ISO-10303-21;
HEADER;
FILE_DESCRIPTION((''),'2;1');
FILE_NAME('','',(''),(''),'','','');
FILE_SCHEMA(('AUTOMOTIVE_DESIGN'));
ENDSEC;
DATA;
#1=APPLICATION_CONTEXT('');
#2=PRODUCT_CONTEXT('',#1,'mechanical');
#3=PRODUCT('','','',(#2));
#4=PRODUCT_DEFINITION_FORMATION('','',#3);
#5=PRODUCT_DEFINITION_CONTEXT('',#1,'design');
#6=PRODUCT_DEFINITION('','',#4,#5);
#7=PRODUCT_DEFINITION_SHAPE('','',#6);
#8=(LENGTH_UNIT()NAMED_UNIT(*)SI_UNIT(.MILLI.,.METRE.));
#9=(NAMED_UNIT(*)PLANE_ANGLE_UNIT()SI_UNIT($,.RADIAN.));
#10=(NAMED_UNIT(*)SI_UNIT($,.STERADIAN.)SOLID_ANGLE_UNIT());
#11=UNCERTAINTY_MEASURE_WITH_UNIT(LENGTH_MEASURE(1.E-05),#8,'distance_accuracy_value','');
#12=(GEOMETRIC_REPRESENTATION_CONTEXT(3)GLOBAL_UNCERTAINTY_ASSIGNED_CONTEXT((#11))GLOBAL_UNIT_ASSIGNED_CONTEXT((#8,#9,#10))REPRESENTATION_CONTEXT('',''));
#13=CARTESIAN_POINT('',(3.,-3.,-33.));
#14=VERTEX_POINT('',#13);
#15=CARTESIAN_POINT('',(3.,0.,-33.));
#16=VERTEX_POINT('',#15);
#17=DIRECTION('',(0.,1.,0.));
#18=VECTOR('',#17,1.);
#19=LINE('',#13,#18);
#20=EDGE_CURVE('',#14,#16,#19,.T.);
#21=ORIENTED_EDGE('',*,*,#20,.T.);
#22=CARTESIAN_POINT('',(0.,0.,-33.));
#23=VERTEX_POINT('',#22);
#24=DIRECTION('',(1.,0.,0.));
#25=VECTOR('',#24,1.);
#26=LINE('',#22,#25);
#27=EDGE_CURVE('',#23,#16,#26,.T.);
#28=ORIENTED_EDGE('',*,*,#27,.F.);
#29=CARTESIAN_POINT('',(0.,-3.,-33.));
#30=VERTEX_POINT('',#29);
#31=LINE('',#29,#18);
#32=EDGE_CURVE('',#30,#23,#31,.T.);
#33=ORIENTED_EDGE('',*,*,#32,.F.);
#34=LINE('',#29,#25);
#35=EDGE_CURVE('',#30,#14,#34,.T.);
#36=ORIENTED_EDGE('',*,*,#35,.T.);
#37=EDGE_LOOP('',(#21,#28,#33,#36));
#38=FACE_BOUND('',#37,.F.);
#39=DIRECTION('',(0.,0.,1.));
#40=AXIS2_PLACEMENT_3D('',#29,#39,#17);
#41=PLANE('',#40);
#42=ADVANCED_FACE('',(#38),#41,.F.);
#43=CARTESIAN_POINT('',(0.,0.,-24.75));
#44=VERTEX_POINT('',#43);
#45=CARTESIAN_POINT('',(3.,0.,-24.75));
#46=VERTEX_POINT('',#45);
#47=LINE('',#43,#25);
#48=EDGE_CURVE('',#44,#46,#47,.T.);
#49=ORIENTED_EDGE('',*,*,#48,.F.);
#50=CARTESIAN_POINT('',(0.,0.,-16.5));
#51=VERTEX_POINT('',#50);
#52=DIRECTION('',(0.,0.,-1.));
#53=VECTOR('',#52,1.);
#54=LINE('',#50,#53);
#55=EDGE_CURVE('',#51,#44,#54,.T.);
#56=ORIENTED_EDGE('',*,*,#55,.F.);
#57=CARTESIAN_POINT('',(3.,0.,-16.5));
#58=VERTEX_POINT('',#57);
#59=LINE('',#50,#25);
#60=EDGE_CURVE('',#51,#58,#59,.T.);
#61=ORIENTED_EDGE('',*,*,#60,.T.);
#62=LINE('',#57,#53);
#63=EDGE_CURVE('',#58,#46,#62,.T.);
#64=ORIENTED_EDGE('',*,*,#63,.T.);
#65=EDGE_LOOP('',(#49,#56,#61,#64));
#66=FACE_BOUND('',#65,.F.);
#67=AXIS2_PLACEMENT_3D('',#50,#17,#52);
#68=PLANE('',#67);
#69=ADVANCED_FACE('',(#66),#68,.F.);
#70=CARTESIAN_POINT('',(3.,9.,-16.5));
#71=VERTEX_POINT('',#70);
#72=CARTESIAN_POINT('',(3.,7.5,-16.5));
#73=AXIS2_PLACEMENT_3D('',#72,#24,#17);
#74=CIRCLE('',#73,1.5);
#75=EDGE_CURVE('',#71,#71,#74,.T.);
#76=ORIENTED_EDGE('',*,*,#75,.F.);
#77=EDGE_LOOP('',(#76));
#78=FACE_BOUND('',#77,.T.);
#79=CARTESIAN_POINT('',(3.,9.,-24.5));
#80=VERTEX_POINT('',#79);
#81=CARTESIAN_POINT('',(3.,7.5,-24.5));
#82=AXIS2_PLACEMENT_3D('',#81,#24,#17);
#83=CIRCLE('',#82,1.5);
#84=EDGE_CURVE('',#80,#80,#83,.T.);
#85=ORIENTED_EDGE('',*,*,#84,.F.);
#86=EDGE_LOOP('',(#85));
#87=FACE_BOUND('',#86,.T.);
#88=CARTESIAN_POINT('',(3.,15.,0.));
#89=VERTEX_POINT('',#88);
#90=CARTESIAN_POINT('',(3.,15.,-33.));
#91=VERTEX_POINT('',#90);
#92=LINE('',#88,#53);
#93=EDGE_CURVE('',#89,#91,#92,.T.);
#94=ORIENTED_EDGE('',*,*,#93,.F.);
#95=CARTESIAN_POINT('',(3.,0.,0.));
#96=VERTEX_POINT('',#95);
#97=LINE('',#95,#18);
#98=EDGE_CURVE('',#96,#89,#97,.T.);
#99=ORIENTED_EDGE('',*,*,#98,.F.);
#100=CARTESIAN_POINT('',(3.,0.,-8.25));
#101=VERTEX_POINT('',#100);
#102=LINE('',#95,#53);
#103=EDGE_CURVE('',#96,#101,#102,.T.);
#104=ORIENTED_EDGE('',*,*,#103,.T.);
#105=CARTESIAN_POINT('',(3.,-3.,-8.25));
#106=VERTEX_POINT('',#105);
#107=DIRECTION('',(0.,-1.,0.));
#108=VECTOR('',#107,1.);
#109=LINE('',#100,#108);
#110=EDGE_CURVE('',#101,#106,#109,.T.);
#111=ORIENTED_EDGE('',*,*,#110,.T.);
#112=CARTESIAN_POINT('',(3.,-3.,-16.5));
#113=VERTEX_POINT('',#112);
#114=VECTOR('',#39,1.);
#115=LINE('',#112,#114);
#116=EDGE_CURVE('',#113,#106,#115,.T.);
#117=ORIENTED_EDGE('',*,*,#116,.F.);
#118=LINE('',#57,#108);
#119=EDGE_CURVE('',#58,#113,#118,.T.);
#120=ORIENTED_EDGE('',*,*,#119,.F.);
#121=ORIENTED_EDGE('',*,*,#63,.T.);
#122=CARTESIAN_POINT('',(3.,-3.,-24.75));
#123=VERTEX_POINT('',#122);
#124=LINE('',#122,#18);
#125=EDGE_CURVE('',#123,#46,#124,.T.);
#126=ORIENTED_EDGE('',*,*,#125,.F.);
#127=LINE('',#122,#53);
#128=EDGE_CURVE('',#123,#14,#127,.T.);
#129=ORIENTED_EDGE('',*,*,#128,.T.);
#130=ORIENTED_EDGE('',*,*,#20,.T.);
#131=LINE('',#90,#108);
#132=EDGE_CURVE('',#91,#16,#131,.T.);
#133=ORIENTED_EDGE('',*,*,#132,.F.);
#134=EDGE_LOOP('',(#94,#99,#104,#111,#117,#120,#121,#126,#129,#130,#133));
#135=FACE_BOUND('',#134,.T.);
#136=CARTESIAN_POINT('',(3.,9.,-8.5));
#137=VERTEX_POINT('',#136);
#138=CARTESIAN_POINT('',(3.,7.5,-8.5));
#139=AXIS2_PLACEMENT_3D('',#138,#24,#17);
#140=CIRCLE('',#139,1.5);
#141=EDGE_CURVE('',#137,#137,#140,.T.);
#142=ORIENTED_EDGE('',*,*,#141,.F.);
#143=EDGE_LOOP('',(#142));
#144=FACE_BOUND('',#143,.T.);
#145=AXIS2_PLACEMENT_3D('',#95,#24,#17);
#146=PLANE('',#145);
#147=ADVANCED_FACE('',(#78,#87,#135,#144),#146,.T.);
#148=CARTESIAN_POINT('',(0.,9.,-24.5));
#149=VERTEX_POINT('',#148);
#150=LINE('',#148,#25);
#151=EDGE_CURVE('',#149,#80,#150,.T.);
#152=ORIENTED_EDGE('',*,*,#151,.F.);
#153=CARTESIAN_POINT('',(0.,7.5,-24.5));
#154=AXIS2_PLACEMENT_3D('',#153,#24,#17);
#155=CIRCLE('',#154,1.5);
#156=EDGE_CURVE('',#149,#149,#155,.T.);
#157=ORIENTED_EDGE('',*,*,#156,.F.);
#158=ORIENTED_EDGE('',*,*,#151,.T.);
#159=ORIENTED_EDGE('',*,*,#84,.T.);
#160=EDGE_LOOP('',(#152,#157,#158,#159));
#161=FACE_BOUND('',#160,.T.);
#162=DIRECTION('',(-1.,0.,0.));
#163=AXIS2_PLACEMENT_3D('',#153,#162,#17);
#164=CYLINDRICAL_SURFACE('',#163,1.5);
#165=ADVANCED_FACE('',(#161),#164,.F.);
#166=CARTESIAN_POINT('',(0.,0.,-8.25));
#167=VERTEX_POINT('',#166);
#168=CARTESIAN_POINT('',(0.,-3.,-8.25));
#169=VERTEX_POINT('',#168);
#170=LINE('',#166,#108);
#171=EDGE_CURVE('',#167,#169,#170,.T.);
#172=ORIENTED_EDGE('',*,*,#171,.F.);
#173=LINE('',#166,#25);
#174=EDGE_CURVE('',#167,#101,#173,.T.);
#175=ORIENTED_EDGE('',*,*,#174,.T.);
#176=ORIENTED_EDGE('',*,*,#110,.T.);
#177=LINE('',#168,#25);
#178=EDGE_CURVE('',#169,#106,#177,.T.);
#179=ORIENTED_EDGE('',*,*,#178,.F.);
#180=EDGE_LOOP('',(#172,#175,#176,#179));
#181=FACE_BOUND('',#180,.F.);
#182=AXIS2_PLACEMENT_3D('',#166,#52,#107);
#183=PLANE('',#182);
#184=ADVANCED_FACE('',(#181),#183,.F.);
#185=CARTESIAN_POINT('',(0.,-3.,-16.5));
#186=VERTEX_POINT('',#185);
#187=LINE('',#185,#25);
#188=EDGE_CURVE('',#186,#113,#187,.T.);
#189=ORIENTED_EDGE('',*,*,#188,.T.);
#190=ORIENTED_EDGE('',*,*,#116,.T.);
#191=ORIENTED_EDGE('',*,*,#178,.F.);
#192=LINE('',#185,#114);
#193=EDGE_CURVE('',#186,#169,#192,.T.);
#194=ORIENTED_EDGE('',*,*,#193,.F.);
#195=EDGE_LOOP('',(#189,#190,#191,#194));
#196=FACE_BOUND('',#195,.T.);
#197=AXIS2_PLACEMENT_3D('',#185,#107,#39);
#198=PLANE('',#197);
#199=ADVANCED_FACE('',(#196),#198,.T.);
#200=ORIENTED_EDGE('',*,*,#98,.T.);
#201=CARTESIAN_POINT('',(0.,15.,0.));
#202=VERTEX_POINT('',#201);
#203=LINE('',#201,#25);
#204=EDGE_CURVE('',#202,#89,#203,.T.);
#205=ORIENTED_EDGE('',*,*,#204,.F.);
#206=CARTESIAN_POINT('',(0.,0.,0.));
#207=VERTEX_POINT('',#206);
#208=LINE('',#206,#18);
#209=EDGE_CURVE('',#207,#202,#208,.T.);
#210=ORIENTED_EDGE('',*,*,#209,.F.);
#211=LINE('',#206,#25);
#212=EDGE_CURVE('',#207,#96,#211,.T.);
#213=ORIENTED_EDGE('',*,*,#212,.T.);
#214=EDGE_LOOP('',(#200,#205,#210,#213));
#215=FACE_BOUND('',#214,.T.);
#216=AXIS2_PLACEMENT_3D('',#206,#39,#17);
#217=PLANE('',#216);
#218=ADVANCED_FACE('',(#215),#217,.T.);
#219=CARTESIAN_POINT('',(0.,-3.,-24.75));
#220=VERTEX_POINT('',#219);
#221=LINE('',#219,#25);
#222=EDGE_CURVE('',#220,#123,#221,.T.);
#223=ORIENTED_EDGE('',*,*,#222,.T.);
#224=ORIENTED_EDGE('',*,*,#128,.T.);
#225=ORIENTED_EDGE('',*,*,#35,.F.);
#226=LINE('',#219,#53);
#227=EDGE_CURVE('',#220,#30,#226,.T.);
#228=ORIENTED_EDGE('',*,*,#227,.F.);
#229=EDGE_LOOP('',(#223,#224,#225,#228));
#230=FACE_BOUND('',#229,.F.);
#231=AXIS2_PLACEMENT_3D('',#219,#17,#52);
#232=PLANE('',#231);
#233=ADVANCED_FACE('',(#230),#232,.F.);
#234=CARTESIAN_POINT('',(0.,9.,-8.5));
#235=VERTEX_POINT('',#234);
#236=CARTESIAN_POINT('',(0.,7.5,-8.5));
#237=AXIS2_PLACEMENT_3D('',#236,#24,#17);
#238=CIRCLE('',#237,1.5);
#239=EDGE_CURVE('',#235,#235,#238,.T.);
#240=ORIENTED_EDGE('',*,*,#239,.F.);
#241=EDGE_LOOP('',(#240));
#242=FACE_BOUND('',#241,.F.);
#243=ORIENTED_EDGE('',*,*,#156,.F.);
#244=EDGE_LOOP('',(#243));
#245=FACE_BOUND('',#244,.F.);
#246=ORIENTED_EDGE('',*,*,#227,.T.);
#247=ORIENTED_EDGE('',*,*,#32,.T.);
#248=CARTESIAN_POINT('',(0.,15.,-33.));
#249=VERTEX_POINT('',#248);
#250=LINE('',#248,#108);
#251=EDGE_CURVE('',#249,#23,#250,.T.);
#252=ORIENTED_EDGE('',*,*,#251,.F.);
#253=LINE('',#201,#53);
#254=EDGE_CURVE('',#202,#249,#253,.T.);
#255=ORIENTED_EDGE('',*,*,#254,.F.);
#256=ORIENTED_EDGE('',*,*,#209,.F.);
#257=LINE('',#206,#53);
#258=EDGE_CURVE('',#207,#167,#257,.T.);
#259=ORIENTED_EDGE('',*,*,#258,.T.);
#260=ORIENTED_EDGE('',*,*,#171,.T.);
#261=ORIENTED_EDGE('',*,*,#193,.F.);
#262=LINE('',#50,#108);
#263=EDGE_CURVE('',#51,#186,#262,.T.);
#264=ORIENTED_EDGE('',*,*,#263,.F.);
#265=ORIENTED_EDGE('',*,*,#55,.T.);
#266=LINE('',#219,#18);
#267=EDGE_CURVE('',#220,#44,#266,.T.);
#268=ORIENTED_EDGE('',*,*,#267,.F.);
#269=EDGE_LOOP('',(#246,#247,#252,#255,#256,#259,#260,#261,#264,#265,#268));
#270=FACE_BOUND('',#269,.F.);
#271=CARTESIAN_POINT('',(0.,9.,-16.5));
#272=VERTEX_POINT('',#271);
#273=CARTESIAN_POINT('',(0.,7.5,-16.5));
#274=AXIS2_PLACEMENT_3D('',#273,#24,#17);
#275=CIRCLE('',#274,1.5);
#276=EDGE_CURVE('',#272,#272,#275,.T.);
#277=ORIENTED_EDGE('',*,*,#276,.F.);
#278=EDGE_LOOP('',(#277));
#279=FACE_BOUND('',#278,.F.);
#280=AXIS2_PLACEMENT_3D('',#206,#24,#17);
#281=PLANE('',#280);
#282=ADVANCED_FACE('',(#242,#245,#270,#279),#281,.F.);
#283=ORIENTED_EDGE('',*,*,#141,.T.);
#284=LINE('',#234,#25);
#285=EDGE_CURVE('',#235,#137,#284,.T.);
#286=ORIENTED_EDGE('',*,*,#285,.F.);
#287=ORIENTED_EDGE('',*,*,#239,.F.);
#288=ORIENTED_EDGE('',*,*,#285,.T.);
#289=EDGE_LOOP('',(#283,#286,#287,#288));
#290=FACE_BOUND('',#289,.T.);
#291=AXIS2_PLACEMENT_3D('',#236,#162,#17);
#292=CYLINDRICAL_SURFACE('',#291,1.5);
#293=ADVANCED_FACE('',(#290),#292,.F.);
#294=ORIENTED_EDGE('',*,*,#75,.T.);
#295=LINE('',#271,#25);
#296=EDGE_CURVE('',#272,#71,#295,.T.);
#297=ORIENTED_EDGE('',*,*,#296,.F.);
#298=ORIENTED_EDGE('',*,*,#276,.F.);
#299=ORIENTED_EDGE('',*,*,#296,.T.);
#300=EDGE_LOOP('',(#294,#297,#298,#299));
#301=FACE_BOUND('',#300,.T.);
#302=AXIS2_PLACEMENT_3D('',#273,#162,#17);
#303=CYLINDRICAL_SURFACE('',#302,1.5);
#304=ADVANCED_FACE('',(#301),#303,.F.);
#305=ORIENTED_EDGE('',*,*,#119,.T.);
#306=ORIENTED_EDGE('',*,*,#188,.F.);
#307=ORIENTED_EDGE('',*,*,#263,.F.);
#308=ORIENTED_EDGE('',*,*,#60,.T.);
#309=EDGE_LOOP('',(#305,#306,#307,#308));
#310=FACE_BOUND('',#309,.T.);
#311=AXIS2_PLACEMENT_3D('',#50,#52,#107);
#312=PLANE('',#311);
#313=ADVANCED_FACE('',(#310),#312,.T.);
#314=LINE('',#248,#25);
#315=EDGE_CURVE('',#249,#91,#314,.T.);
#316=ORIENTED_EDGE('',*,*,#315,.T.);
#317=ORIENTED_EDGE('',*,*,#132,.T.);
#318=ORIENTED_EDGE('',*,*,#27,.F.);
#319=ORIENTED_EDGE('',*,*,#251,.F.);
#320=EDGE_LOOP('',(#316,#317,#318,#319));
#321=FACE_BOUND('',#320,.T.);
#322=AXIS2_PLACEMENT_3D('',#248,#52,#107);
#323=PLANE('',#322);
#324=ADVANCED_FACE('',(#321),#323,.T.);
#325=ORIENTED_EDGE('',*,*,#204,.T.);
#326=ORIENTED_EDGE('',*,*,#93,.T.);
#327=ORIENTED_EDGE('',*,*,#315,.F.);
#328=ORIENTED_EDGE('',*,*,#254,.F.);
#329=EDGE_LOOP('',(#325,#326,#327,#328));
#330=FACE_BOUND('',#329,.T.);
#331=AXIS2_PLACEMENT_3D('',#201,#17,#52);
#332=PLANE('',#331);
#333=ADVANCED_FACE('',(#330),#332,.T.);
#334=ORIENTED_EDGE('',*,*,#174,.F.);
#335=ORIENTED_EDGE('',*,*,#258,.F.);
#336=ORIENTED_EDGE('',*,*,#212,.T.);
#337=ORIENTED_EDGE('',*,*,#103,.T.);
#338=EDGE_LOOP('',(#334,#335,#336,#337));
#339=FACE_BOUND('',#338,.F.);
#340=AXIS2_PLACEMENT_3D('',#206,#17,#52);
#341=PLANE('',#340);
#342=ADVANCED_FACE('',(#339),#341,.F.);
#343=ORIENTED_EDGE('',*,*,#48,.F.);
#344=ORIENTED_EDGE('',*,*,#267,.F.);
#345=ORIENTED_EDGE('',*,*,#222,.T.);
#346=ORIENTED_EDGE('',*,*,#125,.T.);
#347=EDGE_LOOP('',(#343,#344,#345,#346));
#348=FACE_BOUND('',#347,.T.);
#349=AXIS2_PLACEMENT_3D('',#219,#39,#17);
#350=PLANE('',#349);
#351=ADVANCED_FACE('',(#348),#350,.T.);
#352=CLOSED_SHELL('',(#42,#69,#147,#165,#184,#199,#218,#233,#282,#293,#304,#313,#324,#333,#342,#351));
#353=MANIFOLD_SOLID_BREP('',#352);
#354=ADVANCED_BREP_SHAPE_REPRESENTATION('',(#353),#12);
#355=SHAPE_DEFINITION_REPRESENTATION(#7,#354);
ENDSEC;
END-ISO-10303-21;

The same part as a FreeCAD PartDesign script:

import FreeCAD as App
import Part
import Sketcher
Q = App.Units.Quantity


def add_polygon(sketch, points):
    """Adds a closed chain of lines whose ends are joined by coincident constraints."""
    first, n = sketch.GeometryCount, len(points)
    for a, b in zip(points, points[1:] + points[:1]):
        sketch.addGeometry(Part.LineSegment(App.Vector(*a, 0), App.Vector(*b, 0)), False)
    for i in range(n):
        sketch.addConstraint(Sketcher.Constraint("Coincident", first + i, 2, first + (i + 1) % n, 1))

doc = App.newDocument("Part")
params = doc.addObject("Spreadsheet::Sheet", "Params")
for row, (alias, value) in enumerate([
    ("sketch1_diameter", "3 mm"),
    ("sketch1_width", "3 mm"),
    ("sketch1_height", "33 mm"),
    ("sketch1_width2", "15 mm"),
    ("pad1_length", "3 mm"),
], start=1):
    params.set(f"A{row}", alias)
    params.set(f"B{row}", "=" + value)
    params.setAlias(f"B{row}", alias)

body = doc.addObject("PartDesign::Body", "Body")

# Sketch on YZ plane
sketch1 = doc.addObject("Sketcher::SketchObject", "Sketch")
body.addObject(sketch1)
sketch1.AttachmentSupport = (doc.YZ_Plane, [""])
sketch1.MapMode = "FlatFace"
add_polygon(sketch1, [(15, 0), (0, 0), (0, -8.2), (-3, -8.2), (-3, -16.5), (0, -16.5), (0, -24.8), (-3, -24.8), (-3, -33), (15, -33)])  # lines 0-9
sketch1.addGeometry(Part.Circle(App.Vector(7.5, -24.5, 0), App.Vector(0, 0, 1), 1.5), False)  # 10
sketch1.addGeometry(Part.Circle(App.Vector(7.5, -16.5, 0), App.Vector(0, 0, 1), 1.5), False)  # 11
sketch1.addGeometry(Part.Circle(App.Vector(7.5, -8.5, 0), App.Vector(0, 0, 1), 1.5), False)  # 12
sketch1.addConstraint([
    Sketcher.Constraint("Horizontal", 0),
    Sketcher.Constraint("Vertical", 1),
    Sketcher.Constraint("Horizontal", 2),
    Sketcher.Constraint("Vertical", 3),
    Sketcher.Constraint("Horizontal", 4),
    Sketcher.Constraint("Vertical", 5),
    Sketcher.Constraint("Horizontal", 6),
    Sketcher.Constraint("Vertical", 7),
    Sketcher.Constraint("Horizontal", 8),
    Sketcher.Constraint("Vertical", 9),
    Sketcher.Constraint("Coincident", 0, 2, -1, 1),
    Sketcher.Constraint("Equal", 10, 11),
    Sketcher.Constraint("Equal", 11, 12),
    Sketcher.Constraint("PointOnObject", 4, 2, -2),
    Sketcher.Constraint("Horizontal", 11, 3, 3, 2),
    Sketcher.Constraint("Vertical", 10, 3, 11, 3),
    Sketcher.Constraint("Vertical", 11, 3, 12, 3),
    Sketcher.Constraint("Vertical", 3, 2, 6, 2),
    Sketcher.Constraint("Equal", 1, 3),
    Sketcher.Constraint("Equal", 3, 5),
    Sketcher.Constraint("Equal", 5, 7),
    Sketcher.Constraint("Diameter", 10, Q("3 mm")),
    Sketcher.Constraint("DistanceX", 2, 2, 2, 1, Q("3 mm")),
    Sketcher.Constraint("DistanceY", 9, 1, 9, 2, Q("33 mm")),
    Sketcher.Constraint("DistanceX", 0, 2, 0, 1, Q("15 mm")),
    Sketcher.Constraint("DistanceY", 10, 3, 11, 3, Q("8 mm")),
    Sketcher.Constraint("DistanceY", 11, 3, 12, 3, Q("8 mm")),
    Sketcher.Constraint("DistanceX", -1, 1, 10, 3, Q("7.5 mm")),
])
sketch1.setExpression("Constraints[31]", "Params.sketch1_diameter")
sketch1.setExpression("Constraints[32]", "Params.sketch1_width")
sketch1.setExpression("Constraints[33]", "Params.sketch1_height")
sketch1.setExpression("Constraints[34]", "Params.sketch1_width2")
pad1 = doc.addObject("PartDesign::Pad", "Pad")
body.addObject(pad1)
pad1.Profile = sketch1
pad1.setExpression("Length", "Params.pad1_length")

doc.recompute()
